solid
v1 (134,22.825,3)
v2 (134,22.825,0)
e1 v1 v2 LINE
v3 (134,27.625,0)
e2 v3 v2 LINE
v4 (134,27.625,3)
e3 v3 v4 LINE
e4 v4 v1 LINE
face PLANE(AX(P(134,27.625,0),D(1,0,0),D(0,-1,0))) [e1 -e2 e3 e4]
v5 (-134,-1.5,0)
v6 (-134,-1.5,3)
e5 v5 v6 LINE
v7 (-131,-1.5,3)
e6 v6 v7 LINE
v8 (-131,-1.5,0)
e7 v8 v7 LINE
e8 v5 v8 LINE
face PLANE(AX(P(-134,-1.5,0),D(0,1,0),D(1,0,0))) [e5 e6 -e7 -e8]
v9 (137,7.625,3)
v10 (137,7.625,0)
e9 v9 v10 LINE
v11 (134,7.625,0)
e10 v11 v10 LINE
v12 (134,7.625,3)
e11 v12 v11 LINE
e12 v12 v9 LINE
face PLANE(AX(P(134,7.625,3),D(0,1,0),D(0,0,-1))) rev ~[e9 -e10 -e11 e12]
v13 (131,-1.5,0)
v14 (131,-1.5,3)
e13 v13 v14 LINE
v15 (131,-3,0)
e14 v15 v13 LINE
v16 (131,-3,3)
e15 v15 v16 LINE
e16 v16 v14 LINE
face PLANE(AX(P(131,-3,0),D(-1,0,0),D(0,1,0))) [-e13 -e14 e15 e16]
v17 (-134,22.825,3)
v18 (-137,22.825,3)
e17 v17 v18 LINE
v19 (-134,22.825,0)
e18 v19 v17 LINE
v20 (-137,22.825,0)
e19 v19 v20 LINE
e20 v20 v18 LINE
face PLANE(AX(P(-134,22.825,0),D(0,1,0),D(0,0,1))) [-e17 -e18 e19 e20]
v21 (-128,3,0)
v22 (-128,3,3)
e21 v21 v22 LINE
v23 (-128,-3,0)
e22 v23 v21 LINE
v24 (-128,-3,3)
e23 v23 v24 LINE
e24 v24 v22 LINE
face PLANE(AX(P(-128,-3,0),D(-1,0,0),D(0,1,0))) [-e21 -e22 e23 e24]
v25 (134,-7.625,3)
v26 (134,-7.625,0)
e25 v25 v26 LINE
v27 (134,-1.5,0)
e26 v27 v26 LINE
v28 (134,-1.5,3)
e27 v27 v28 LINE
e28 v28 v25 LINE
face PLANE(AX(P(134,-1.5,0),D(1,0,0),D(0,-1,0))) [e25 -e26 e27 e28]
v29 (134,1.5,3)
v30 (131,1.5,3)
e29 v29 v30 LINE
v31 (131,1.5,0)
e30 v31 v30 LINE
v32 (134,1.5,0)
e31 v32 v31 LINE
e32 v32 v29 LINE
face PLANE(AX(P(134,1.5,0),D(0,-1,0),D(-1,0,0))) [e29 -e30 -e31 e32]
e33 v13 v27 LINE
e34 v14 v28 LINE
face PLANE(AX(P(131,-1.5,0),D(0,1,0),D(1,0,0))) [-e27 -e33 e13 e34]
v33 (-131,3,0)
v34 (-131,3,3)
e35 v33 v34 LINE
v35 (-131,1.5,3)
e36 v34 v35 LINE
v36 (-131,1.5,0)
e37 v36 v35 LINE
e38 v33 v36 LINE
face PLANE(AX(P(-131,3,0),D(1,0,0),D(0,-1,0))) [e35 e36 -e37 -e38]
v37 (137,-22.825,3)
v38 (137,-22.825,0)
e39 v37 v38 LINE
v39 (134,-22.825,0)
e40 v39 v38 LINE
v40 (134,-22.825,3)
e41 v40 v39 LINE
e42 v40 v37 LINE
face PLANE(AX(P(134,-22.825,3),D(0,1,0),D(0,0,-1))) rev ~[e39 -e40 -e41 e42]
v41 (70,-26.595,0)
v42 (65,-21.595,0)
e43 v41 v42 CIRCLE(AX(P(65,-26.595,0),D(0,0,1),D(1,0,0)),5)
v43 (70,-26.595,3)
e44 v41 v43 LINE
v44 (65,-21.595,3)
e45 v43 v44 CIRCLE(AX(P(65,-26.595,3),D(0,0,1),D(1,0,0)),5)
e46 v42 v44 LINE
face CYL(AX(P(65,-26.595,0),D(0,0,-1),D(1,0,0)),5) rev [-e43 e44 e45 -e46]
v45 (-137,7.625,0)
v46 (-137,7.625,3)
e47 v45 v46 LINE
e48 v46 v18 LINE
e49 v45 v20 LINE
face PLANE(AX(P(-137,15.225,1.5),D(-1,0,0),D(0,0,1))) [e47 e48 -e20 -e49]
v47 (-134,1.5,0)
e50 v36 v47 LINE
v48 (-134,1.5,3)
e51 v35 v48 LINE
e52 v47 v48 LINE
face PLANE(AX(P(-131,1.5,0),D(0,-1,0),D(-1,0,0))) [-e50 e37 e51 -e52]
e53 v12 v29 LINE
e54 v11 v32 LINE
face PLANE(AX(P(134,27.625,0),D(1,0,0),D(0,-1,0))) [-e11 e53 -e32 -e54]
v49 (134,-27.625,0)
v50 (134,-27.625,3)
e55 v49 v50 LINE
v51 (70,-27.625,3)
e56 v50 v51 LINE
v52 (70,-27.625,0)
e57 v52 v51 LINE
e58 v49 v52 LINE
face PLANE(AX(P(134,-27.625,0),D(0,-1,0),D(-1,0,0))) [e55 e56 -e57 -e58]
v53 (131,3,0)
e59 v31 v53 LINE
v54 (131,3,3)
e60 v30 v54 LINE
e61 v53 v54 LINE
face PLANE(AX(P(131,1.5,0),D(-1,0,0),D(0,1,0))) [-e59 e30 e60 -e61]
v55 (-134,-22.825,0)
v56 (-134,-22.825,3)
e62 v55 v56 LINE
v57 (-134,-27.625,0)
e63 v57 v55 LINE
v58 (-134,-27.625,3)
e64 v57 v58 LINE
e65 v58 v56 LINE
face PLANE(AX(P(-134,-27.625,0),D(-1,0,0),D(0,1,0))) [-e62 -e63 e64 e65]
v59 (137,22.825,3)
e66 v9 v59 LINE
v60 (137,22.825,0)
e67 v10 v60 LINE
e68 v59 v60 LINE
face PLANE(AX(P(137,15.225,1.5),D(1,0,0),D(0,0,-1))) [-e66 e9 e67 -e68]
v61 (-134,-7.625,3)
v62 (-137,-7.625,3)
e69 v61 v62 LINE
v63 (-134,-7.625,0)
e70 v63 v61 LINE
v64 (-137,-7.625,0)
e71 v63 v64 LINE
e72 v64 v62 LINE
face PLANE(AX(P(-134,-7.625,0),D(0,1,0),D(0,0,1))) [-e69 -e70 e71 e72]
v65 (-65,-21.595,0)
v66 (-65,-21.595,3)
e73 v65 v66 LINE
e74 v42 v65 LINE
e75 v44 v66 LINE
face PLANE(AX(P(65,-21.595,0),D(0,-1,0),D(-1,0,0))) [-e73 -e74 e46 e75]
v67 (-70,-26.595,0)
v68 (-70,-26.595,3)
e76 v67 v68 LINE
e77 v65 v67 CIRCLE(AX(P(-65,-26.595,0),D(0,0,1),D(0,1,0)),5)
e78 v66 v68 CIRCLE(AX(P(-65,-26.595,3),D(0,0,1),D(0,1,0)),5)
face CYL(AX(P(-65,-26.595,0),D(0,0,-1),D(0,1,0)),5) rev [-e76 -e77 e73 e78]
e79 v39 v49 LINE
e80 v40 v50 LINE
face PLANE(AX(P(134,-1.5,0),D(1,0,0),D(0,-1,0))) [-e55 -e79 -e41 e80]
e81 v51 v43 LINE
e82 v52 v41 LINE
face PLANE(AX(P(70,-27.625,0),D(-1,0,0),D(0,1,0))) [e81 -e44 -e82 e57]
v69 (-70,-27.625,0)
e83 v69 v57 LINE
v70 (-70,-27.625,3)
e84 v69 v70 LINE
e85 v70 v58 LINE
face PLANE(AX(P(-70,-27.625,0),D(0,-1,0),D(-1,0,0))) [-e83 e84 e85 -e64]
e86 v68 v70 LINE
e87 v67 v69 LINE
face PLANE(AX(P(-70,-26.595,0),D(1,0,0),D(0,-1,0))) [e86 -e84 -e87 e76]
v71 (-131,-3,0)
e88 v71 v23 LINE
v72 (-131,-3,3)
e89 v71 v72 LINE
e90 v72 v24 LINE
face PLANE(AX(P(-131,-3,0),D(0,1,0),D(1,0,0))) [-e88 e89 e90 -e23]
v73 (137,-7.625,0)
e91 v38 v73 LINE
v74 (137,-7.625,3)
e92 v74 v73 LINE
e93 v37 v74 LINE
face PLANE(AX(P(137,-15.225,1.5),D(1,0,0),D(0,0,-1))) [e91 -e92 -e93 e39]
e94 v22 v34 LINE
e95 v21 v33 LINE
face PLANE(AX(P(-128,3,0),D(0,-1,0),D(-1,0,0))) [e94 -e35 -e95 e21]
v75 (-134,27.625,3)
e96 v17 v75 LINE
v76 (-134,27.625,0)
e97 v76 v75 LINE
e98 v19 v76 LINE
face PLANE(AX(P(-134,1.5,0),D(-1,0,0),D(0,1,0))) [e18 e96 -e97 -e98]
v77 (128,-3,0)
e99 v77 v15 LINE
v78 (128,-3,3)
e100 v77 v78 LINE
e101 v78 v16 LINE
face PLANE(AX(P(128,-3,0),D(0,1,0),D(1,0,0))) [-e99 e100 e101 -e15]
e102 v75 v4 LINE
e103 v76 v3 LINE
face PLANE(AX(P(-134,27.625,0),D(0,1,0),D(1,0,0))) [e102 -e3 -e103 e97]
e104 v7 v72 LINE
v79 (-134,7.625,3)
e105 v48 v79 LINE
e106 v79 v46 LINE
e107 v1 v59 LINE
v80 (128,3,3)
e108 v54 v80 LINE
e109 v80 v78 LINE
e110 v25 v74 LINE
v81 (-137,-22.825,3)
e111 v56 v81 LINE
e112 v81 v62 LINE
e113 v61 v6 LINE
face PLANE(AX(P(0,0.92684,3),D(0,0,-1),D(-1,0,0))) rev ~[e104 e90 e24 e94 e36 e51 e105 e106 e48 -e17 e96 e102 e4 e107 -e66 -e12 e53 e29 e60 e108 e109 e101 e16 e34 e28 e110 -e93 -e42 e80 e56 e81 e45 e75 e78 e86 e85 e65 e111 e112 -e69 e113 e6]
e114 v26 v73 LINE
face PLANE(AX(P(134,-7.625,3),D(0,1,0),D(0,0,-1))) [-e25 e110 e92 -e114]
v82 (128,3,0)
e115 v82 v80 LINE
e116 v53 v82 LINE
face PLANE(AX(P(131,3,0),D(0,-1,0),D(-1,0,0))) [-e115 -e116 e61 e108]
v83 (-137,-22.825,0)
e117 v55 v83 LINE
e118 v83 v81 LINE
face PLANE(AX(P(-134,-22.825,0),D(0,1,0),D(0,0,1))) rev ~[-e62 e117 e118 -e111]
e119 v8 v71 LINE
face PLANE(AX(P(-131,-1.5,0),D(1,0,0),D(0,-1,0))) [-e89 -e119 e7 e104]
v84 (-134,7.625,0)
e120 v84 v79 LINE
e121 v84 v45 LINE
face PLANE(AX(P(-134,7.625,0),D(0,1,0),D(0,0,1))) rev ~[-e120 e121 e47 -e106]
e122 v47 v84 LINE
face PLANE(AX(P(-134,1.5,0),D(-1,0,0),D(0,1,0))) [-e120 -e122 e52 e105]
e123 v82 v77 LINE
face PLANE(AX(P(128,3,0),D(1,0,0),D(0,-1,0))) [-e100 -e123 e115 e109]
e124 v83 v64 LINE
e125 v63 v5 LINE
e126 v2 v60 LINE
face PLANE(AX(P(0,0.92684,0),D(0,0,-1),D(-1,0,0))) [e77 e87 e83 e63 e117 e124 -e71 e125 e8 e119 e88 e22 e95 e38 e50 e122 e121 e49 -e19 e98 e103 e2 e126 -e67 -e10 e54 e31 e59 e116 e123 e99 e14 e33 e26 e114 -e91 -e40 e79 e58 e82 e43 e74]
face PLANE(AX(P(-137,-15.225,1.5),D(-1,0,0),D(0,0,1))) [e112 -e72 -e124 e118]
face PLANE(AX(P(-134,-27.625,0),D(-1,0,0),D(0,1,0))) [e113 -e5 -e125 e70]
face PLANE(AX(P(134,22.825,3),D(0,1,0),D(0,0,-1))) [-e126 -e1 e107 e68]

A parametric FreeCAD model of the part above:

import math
import FreeCAD as App
import Part
import Sketcher

V = App.Vector
Q = App.Units.Quantity


def add_polygon(sketch, points):
    """Adds a closed chain of lines whose ends are joined by coincident constraints."""
    first, n = sketch.GeometryCount, len(points)
    for a, b in zip(points, points[1:] + points[:1]):
        sketch.addGeometry(Part.LineSegment(App.Vector(*a, 0), App.Vector(*b, 0)), False)
    for i in range(n):
        sketch.addConstraint(Sketcher.Constraint("Coincident", first + i, 2, first + (i + 1) % n, 1))

doc = App.newDocument("Part")
body = doc.addObject("PartDesign::Body", "Body")

# Sketch on XY plane
sketch1 = body.newObject("Sketcher::SketchObject", "Sketch")
sketch1.AttachmentSupport = (doc.getObject("XY_Plane"), [""])
sketch1.MapMode = "FlatFace"
sketch1.addGeometry(Part.LineSegment(V(70, -27.6, 0), V(134, -27.6, 0)), False)
sketch1.addGeometry(Part.LineSegment(V(134, -27.6, 0), V(134, -1.5, 0)), False)
sketch1.addGeometry(Part.LineSegment(V(134, -1.5, 0), V(131, -1.5, 0)), False)
sketch1.addGeometry(Part.LineSegment(V(131, -1.5, 0), V(131, -3, 0)), False)
sketch1.addGeometry(Part.LineSegment(V(131, -3, 0), V(128, -3, 0)), False)
sketch1.addGeometry(Part.LineSegment(V(128, -3, 0), V(128, 3, 0)), False)
sketch1.addGeometry(Part.LineSegment(V(128, 3, 0), V(131, 3, 0)), False)
sketch1.addGeometry(Part.LineSegment(V(131, 3, 0), V(131, 1.5, 0)), False)
sketch1.addGeometry(Part.LineSegment(V(131, 1.5, 0), V(134, 1.5, 0)), False)
sketch1.addGeometry(Part.LineSegment(V(134, 1.5, 0), V(134, 27.6, 0)), False)
sketch1.addGeometry(Part.LineSegment(V(134, 27.6, 0), V(-134, 27.6, 0)), False)
sketch1.addGeometry(Part.LineSegment(V(-134, 27.6, 0), V(-134, 1.5, 0)), False)
sketch1.addGeometry(Part.LineSegment(V(-134, 1.5, 0), V(-131, 1.5, 0)), False)
sketch1.addGeometry(Part.LineSegment(V(-131, 1.5, 0), V(-131, 3, 0)), False)
sketch1.addGeometry(Part.LineSegment(V(-131, 3, 0), V(-128, 3, 0)), False)
sketch1.addGeometry(Part.LineSegment(V(-128, 3, 0), V(-128, -3, 0)), False)
sketch1.addGeometry(Part.LineSegment(V(-128, -3, 0), V(-131, -3, 0)), False)
sketch1.addGeometry(Part.LineSegment(V(-131, -3, 0), V(-131, -1.5, 0)), False)
sketch1.addGeometry(Part.LineSegment(V(-131, -1.5, 0), V(-134, -1.5, 0)), False)
sketch1.addGeometry(Part.LineSegment(V(-134, -1.5, 0), V(-134, -27.6, 0)), False)
sketch1.addGeometry(Part.LineSegment(V(-134, -27.6, 0), V(-70, -27.6, 0)), False)
sketch1.addGeometry(Part.LineSegment(V(-70, -27.6, 0), V(-70, -26.6, 0)), False)
sketch1.addGeometry(Part.ArcOfCircle(Part.Circle(V(-65, -26.6, 0), V(0, 0, 1), 5), math.radians(90), math.radians(180)), False)
sketch1.addGeometry(Part.LineSegment(V(-65, -21.6, 0), V(65, -21.6, 0)), False)
sketch1.addGeometry(Part.ArcOfCircle(Part.Circle(V(65, -26.6, 0), V(0, 0, 1), 5), math.radians(0), math.radians(90)), False)
sketch1.addGeometry(Part.LineSegment(V(70, -26.6, 0), V(70, -27.6, 0)), False)
sketch1.addConstraint(Sketcher.Constraint("Coincident", 0, 2, 1, 1))
sketch1.addConstraint(Sketcher.Constraint("Coincident", 1, 2, 2, 1))
sketch1.addConstraint(Sketcher.Constraint("Coincident", 2, 2, 3, 1))
sketch1.addConstraint(Sketcher.Constraint("Coincident", 3, 2, 4, 1))
sketch1.addConstraint(Sketcher.Constraint("Coincident", 4, 2, 5, 1))
sketch1.addConstraint(Sketcher.Constraint("Coincident", 5, 2, 6, 1))
sketch1.addConstraint(Sketcher.Constraint("Coincident", 6, 2, 7, 1))
sketch1.addConstraint(Sketcher.Constraint("Coincident", 7, 2, 8, 1))
sketch1.addConstraint(Sketcher.Constraint("Coincident", 8, 2, 9, 1))
sketch1.addConstraint(Sketcher.Constraint("Coincident", 9, 2, 10, 1))
sketch1.addConstraint(Sketcher.Constraint("Coincident", 10, 2, 11, 1))
sketch1.addConstraint(Sketcher.Constraint("Coincident", 11, 2, 12, 1))
sketch1.addConstraint(Sketcher.Constraint("Coincident", 12, 2, 13, 1))
sketch1.addConstraint(Sketcher.Constraint("Coincident", 13, 2, 14, 1))
sketch1.addConstraint(Sketcher.Constraint("Coincident", 14, 2, 15, 1))
sketch1.addConstraint(Sketcher.Constraint("Coincident", 15, 2, 16, 1))
sketch1.addConstraint(Sketcher.Constraint("Coincident", 16, 2, 17, 1))
sketch1.addConstraint(Sketcher.Constraint("Coincident", 17, 2, 18, 1))
sketch1.addConstraint(Sketcher.Constraint("Coincident", 18, 2, 19, 1))
sketch1.addConstraint(Sketcher.Constraint("Coincident", 19, 2, 20, 1))
sketch1.addConstraint(Sketcher.Constraint("Coincident", 20, 2, 21, 1))
sketch1.addConstraint(Sketcher.Constraint("Tangent", 21, 2, 22, 2))
sketch1.addConstraint(Sketcher.Constraint("Tangent", 22, 1, 23, 1))
sketch1.addConstraint(Sketcher.Constraint("Tangent", 23, 2, 24, 2))
sketch1.addConstraint(Sketcher.Constraint("Tangent", 24, 1, 25, 1))
sketch1.addConstraint(Sketcher.Constraint("Coincident", 25, 2, 0, 1))
sketch1.addConstraint(Sketcher.Constraint("Horizontal", 0))
sketch1.addConstraint(Sketcher.Constraint("Vertical", 1))
sketch1.addConstraint(Sketcher.Constraint("Horizontal", 2))
sketch1.addConstraint(Sketcher.Constraint("Vertical", 3))
sketch1.addConstraint(Sketcher.Constraint("Horizontal", 4))
sketch1.addConstraint(Sketcher.Constraint("Vertical", 5))
sketch1.addConstraint(Sketcher.Constraint("Horizontal", 6))
sketch1.addConstraint(Sketcher.Constraint("Vertical", 7))
sketch1.addConstraint(Sketcher.Constraint("Horizontal", 8))
sketch1.addConstraint(Sketcher.Constraint("Vertical", 9))
sketch1.addConstraint(Sketcher.Constraint("Horizontal", 10))
sketch1.addConstraint(Sketcher.Constraint("Vertical", 11))
sketch1.addConstraint(Sketcher.Constraint("Horizontal", 12))
sketch1.addConstraint(Sketcher.Constraint("Vertical", 13))
sketch1.addConstraint(Sketcher.Constraint("Horizontal", 14))
sketch1.addConstraint(Sketcher.Constraint("Vertical", 15))
sketch1.addConstraint(Sketcher.Constraint("Horizontal", 16))
sketch1.addConstraint(Sketcher.Constraint("Vertical", 17))
sketch1.addConstraint(Sketcher.Constraint("Horizontal", 18))
sketch1.addConstraint(Sketcher.Constraint("Vertical", 19))
sketch1.addConstraint(Sketcher.Constraint("Horizontal", 20))
sketch1.addConstraint(Sketcher.Constraint("Vertical", 21))
sketch1.addConstraint(Sketcher.Constraint("Horizontal", 23))
sketch1.addConstraint(Sketcher.Constraint("Vertical", 25))
sketch1.addConstraint(Sketcher.Constraint("Equal", 22, 24))
sketch1.addConstraint(Sketcher.Constraint("Symmetric", 0, 2, 10, 2, -1, 1))
sketch1.addConstraint(Sketcher.Constraint("Symmetric", 2, 2, 12, 2, -1, 1))
sketch1.addConstraint(Sketcher.Constraint("Symmetric", 4, 2, 14, 2, -1, 1))
sketch1.addConstraint(Sketcher.Constraint("Symmetric", 6, 2, 16, 2, -1, 1))
sketch1.addConstraint(Sketcher.Constraint("Symmetric", 8, 2, 18, 2, -1, 1))
sketch1.addConstraint(Sketcher.Constraint("Symmetric", 8, 2, 11, 2, -2))
sketch1.addConstraint(Sketcher.Constraint("Symmetric", 6, 2, 13, 2, -2))
sketch1.addConstraint(Sketcher.Constraint("Symmetric", 20, 2, 25, 2, -2))
sketch1.addConstraint(Sketcher.Constraint("Equal", 2, 4))
sketch1.addConstraint(Sketcher.Constraint("Radius", 22, Q("5 mm")))
sketch1.addConstraint(Sketcher.Constraint("DistanceX", 0, 1, 0, 2, Q("64 mm")))
sketch1.addConstraint(Sketcher.Constraint("DistanceX", 2, 2, 2, 1, Q("3 mm")))
sketch1.addConstraint(Sketcher.Constraint("DistanceX", 10, 2, 10, 1, Q("268 mm")))
sketch1.addConstraint(Sketcher.Constraint("DistanceY", 5, 1, 5, 2, Q("6 mm")))
sketch1.addConstraint(Sketcher.Constraint("DistanceY", 3, 2, 3, 1, Q("1.5 mm")))
sketch1.addConstraint(Sketcher.Constraint("DistanceY", 21, 1, 21, 2, Q("1.03 mm")))
sketch1.addConstraint(Sketcher.Constraint("DistanceY", 1, 1, 1, 2, Q("26.125 mm")))
pad1 = body.newObject("PartDesign::Pad", "Pad")
pad1.Profile = sketch1
pad1.Length = 3

# Sketch on YZ plane
sketch2 = body.newObject("Sketcher::SketchObject", "Sketch001")
sketch2.AttachmentSupport = (doc.getObject("YZ_Plane"), [""])
sketch2.MapMode = "FlatFace"
sketch2.AttachmentOffset = App.Placement(V(0, 0, 134), App.Rotation())
add_polygon(sketch2, [(22.8, 3), (7.6, 3), (7.6, 0), (22.8, 0)])  # lines 0-3
add_polygon(sketch2, [(-7.6, 3), (-22.8, 3), (-22.8, 0), (-7.6, 0)])  # lines 4-7
sketch2.addConstraint(Sketcher.Constraint("Horizontal", 0))
sketch2.addConstraint(Sketcher.Constraint("Vertical", 1))
sketch2.addConstraint(Sketcher.Constraint("Horizontal", 2))
sketch2.addConstraint(Sketcher.Constraint("Vertical", 3))
sketch2.addConstraint(Sketcher.Constraint("Horizontal", 4))
sketch2.addConstraint(Sketcher.Constraint("Vertical", 5))
sketch2.addConstraint(Sketcher.Constraint("Horizontal", 6))
sketch2.addConstraint(Sketcher.Constraint("Vertical", 7))
sketch2.addConstraint(Sketcher.Constraint("Symmetric", 2, 2, 5, 2, -1, 1))
sketch2.addConstraint(Sketcher.Constraint("Symmetric", 1, 2, 6, 2, -2))
sketch2.addConstraint(Sketcher.Constraint("Horizontal", 3, 2, 4, 2))
sketch2.addConstraint(Sketcher.Constraint("DistanceY", 1, 2, 1, 1, Q("3 mm")))
sketch2.addConstraint(Sketcher.Constraint("DistanceX", 0, 2, 0, 1, Q("15.2 mm")))
sketch2.addConstraint(Sketcher.Constraint("DistanceX", 4, 2, 0, 2, Q("30.45 mm")))
pad2 = body.newObject("PartDesign::Pad", "Pad001")
pad2.Profile = sketch2
pad2.Length = 3

# Sketch on YZ plane
sketch3 = body.newObject("Sketcher::SketchObject", "Sketch002")
sketch3.AttachmentSupport = (doc.getObject("YZ_Plane"), [""])
sketch3.MapMode = "FlatFace"
sketch3.AttachmentOffset = App.Placement(V(0, 0, -134), App.Rotation())
add_polygon(sketch3, [(22.8, 0), (7.6, 0), (7.6, 3), (22.8, 3)])  # lines 0-3
add_polygon(sketch3, [(-7.6, 0), (-22.8, 0), (-22.8, 3), (-7.6, 3)])  # lines 4-7
sketch3.addConstraint(Sketcher.Constraint("Horizontal", 0))
sketch3.addConstraint(Sketcher.Constraint("Vertical", 1))
sketch3.addConstraint(Sketcher.Constraint("Horizontal", 2))
sketch3.addConstraint(Sketcher.Constraint("Vertical", 3))
sketch3.addConstraint(Sketcher.Constraint("Horizontal", 4))
sketch3.addConstraint(Sketcher.Constraint("Vertical", 5))
sketch3.addConstraint(Sketcher.Constraint("Horizontal", 6))
sketch3.addConstraint(Sketcher.Constraint("Vertical", 7))
sketch3.addConstraint(Sketcher.Constraint("Symmetric", 3, 2, 4, 2, -1, 1))
sketch3.addConstraint(Sketcher.Constraint("Symmetric", 1, 2, 6, 2, -2))
sketch3.addConstraint(Sketcher.Constraint("PointOnObject", 0, 2, -1))
sketch3.addConstraint(Sketcher.Constraint("DistanceY", 1, 1, 1, 2, Q("3 mm")))
sketch3.addConstraint(Sketcher.Constraint("DistanceX", 0, 2, 0, 1, Q("15.2 mm")))
sketch3.addConstraint(Sketcher.Constraint("DistanceX", 4, 2, 0, 2, Q("30.45 mm")))
pad3 = body.newObject("PartDesign::Pad", "Pad002")
pad3.Profile = sketch3
pad3.Length = 3
pad3.Reversed = True

doc.recompute()
